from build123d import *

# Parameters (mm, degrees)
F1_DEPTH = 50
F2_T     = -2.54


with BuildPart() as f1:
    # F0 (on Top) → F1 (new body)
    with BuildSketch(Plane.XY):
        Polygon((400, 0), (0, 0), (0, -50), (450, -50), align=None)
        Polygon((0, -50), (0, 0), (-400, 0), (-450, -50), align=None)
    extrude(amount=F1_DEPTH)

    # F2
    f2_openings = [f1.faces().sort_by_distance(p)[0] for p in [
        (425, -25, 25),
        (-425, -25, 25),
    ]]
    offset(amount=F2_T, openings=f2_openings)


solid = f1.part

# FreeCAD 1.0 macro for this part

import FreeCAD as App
import Part
import Sketcher
from FreeCAD import Vector


def faces_at(feature, points):
    """Names of the faces that lie closest to the given points."""
    faces = feature.Shape.Faces
    near = lambda p: min(range(len(faces)), key=lambda i: faces[i].distToShape(Part.Vertex(*p))[0])
    return sorted({f"Face{near(p) + 1}" for p in points})


def add_polygon(sketch, points):
    """Adds a closed chain of lines whose ends are joined by coincident constraints."""
    first, n = sketch.GeometryCount, len(points)
    for a, b in zip(points, points[1:] + points[:1]):
        sketch.addGeometry(Part.LineSegment(App.Vector(*a, 0), App.Vector(*b, 0)), False)
    for i in range(n):
        sketch.addConstraint(Sketcher.Constraint("Coincident", first + i, 2, first + (i + 1) % n, 1))

doc = App.newDocument("Part")
body = doc.addObject("PartDesign::Body", "Body")

# Sketch on XY plane
sketch1 = body.newObject("Sketcher::SketchObject", "Sketch")
sketch1.AttachmentSupport = (doc.getObject("XY_Plane"), [""])
sketch1.MapMode = "FlatFace"
add_polygon(sketch1, [(400, 0), (-400, 0), (-450, -50), (450, -50)])  # lines 0-3
sketch1.addConstraint([
    Sketcher.Constraint("Horizontal", 0),
    Sketcher.Constraint("Horizontal", 2),
    Sketcher.Constraint("Symmetric", 0, 2, 3, 2, -1, 1),
    Sketcher.Constraint("Perpendicular", 1, 3),
    Sketcher.Constraint("Equal", 1, 3),
    Sketcher.Constraint("DistanceX", 0, 2, 0, 1, 800.0),
    Sketcher.Constraint("DistanceX", 2, 1, 2, 2, 900.0),
])
pad1 = body.newObject("PartDesign::Pad", "Pad")
pad1.Profile = sketch1
pad1.Length = 50
doc.recompute()

thickness = body.newObject("PartDesign::Thickness", "Thickness")
thickness.Base = (pad1, faces_at(pad1, [(425, -25, 25), (-425, -25, 25)]))
thickness.Value = 2.54
thickness.Reversed = True
thickness.Join = "Arc"

doc.recompute()
